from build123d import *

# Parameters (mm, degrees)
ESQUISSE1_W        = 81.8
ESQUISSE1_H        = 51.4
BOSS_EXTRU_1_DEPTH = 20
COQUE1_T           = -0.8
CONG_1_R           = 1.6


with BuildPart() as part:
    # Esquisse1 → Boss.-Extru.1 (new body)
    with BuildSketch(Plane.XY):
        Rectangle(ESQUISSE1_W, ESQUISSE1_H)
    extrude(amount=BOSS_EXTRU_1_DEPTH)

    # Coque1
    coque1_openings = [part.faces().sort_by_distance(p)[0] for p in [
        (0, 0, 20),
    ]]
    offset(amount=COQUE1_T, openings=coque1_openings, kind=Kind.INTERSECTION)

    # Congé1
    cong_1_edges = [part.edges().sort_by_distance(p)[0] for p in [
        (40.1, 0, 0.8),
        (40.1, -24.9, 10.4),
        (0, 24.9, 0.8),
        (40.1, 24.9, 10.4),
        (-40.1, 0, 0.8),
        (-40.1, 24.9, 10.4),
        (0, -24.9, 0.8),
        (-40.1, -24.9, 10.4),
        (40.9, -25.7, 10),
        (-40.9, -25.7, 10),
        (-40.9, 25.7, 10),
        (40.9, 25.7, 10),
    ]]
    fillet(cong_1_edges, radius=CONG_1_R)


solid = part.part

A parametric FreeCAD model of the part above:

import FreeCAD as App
import Part
import Sketcher
Q = App.Units.Quantity


def edges_at(feature, points):
    """Names of the edges that pass closest to the given points."""
    edges = feature.Shape.Edges
    near = lambda p: min(range(len(edges)), key=lambda i: edges[i].distToShape(Part.Vertex(*p))[0])
    return sorted({f"Edge{near(p) + 1}" for p in points})


def faces_at(feature, points):
    """Names of the faces that lie closest to the given points."""
    faces = feature.Shape.Faces
    near = lambda p: min(range(len(faces)), key=lambda i: faces[i].distToShape(Part.Vertex(*p))[0])
    return sorted({f"Face{near(p) + 1}" for p in points})

doc = App.newDocument("Part")
body = doc.addObject("PartDesign::Body", "Body")

sketch1 = body.newObject("Sketcher::SketchObject", "Sketch")
sketch1.AttachmentSupport = (doc.getObject("XY_Plane"), [""])
sketch1.MapMode = "FlatFace"
sketch1.addGeometry([
    Part.LineSegment(App.Vector(-41, 26, 0), App.Vector(-41, -26, 0)),
    Part.LineSegment(App.Vector(-41, -26, 0), App.Vector(41, -26, 0)),
    Part.LineSegment(App.Vector(41, -26, 0), App.Vector(41, 26, 0)),
    Part.LineSegment(App.Vector(41, 26, 0), App.Vector(-41, 26, 0)),
], False)
sketch1.addConstraint([
    Sketcher.Constraint("Coincident", 0, 2, 1, 1),
    Sketcher.Constraint("Coincident", 1, 2, 2, 1),
    Sketcher.Constraint("Coincident", 2, 2, 3, 1),
    Sketcher.Constraint("Coincident", 3, 2, 0, 1),
    Sketcher.Constraint("Vertical", 0),
    Sketcher.Constraint("Horizontal", 1),
    Sketcher.Constraint("Vertical", 2),
    Sketcher.Constraint("Horizontal", 3),
    Sketcher.Constraint("Symmetric", 0, 2, 2, 2, -1, 1),
    Sketcher.Constraint("DistanceX", 1, 1, 1, 2, Q("81.8 mm")),
    Sketcher.Constraint("DistanceY", 0, 2, 0, 1, Q("51.4 mm")),
])
pad1 = body.newObject("PartDesign::Pad", "Pad")
pad1.Profile = sketch1
pad1.Length = 20
doc.recompute()

thickness = body.newObject("PartDesign::Thickness", "Thickness")
thickness.Base = (pad1, faces_at(pad1, [(0, 0, 20)]))
thickness.Value = 0.8
thickness.Reversed = True
thickness.Join = "Intersection"
doc.recompute()

fillet = body.newObject("PartDesign::Fillet", "Fillet")
fillet.Base = (thickness, edges_at(thickness, [
    (40.1, 0, 0.8),
    (40.1, -24.9, 10.4),
    (0, 24.9, 0.8),
    (40.1, 24.9, 10.4),
    (-40.1, 0, 0.8),
    (-40.1, 24.9, 10.4),
    (0, -24.9, 0.8),
    (-40.1, -24.9, 10.4),
    (40.9, -25.7, 10),
    (-40.9, -25.7, 10),
    (-40.9, 25.7, 10),
    (40.9, 25.7, 10),
]))
fillet.Radius = 1.6

doc.recompute()
